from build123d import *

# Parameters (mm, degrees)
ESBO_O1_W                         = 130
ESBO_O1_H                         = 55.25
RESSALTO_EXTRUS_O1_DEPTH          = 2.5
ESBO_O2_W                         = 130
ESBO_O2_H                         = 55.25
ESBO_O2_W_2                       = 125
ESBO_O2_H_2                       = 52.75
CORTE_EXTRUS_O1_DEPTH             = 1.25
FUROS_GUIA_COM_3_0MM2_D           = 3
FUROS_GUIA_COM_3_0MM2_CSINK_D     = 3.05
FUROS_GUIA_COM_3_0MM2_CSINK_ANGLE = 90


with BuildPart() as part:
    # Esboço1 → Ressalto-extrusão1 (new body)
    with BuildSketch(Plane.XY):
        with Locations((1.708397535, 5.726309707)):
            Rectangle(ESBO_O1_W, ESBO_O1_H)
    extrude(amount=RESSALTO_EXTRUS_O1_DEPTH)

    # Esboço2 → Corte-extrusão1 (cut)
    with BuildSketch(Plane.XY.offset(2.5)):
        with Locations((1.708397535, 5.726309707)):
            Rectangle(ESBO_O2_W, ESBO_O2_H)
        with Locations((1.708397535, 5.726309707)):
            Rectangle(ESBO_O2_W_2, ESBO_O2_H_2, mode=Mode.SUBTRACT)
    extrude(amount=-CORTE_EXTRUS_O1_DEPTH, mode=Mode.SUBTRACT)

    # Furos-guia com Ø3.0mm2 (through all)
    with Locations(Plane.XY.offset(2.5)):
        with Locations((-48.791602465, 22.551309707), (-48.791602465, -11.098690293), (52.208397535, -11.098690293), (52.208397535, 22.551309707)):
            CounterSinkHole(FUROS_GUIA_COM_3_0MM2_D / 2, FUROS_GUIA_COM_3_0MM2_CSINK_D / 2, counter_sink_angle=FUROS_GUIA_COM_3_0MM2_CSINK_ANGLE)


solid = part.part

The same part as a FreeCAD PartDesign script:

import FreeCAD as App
import Part
import Sketcher
from FreeCAD import Vector
Q = App.Units.Quantity

doc = App.newDocument("Part")
body = doc.addObject("PartDesign::Body", "Body")

# Sketch on XY plane
sketch1 = body.newObject("Sketcher::SketchObject", "Sketch")
sketch1.AttachmentSupport = (doc.getObject("XY_Plane"), [""])
sketch1.MapMode = "FlatFace"
sketch1.addGeometry([
    Part.LineSegment(Vector(-63, 33, 0), Vector(-63, -22, 0)),
    Part.LineSegment(Vector(-63, -22, 0), Vector(67, -22, 0)),
    Part.LineSegment(Vector(67, -22, 0), Vector(67, 33, 0)),
    Part.LineSegment(Vector(67, 33, 0), Vector(-63, 33, 0)),
], False)
sketch1.addConstraint([
    Sketcher.Constraint("Coincident", 0, 2, 1, 1),
    Sketcher.Constraint("Coincident", 1, 2, 2, 1),
    Sketcher.Constraint("Coincident", 2, 2, 3, 1),
    Sketcher.Constraint("Coincident", 3, 2, 0, 1),
    Sketcher.Constraint("Vertical", 0),
    Sketcher.Constraint("Horizontal", 1),
    Sketcher.Constraint("Vertical", 2),
    Sketcher.Constraint("Horizontal", 3),
    Sketcher.Constraint("DistanceX", 1, 1, 1, 2, Q("130 mm")),
    Sketcher.Constraint("DistanceY", 0, 2, 0, 1, Q("55.25 mm")),
    Sketcher.Constraint("DistanceY", 0, 2, -1, 1, Q("21.89869 mm")),
    Sketcher.Constraint("DistanceX", 0, 2, -1, 1, Q("63.291602 mm")),
])
pad1 = body.newObject("PartDesign::Pad", "Pad")
pad1.Profile = sketch1
pad1.Length = 2.5

# Sketch on XY plane
sketch2 = body.newObject("Sketcher::SketchObject", "Sketch001")
sketch2.AttachmentSupport = (doc.getObject("XY_Plane"), [""])
sketch2.MapMode = "FlatFace"
sketch2.AttachmentOffset = App.Placement(Vector(0, 0, 2.5), App.Rotation())
sketch2.addGeometry([
    Part.LineSegment(Vector(-63, 33, 0), Vector(-63, -22, 0)),  # 0
    Part.LineSegment(Vector(-63, -22, 0), Vector(67, -22, 0)),  # 1
    Part.LineSegment(Vector(67, -22, 0), Vector(67, 33, 0)),  # 2
    Part.LineSegment(Vector(67, 33, 0), Vector(-63, 33, 0)),  # 3
    Part.LineSegment(Vector(64, -21, 0), Vector(-61, -21, 0)),  # 4
    Part.LineSegment(Vector(-61, -21, 0), Vector(-61, 32, 0)),  # 5
    Part.LineSegment(Vector(-61, 32, 0), Vector(64, 32, 0)),  # 6
    Part.LineSegment(Vector(64, 32, 0), Vector(64, -21, 0)),  # 7
], False)
sketch2.addConstraint([
    Sketcher.Constraint("Coincident", 0, 2, 1, 1),
    Sketcher.Constraint("Coincident", 1, 2, 2, 1),
    Sketcher.Constraint("Coincident", 2, 2, 3, 1),
    Sketcher.Constraint("Coincident", 3, 2, 0, 1),
    Sketcher.Constraint("Coincident", 4, 2, 5, 1),
    Sketcher.Constraint("Coincident", 5, 2, 6, 1),
    Sketcher.Constraint("Coincident", 6, 2, 7, 1),
    Sketcher.Constraint("Coincident", 7, 2, 4, 1),
    Sketcher.Constraint("Vertical", 0),
    Sketcher.Constraint("Horizontal", 1),
    Sketcher.Constraint("Vertical", 2),
    Sketcher.Constraint("Horizontal", 3),
    Sketcher.Constraint("Horizontal", 4),
    Sketcher.Constraint("Vertical", 5),
    Sketcher.Constraint("Horizontal", 6),
    Sketcher.Constraint("Vertical", 7),
    Sketcher.Constraint("DistanceX", 1, 1, 1, 2, Q("130 mm")),
    Sketcher.Constraint("DistanceX", 4, 2, 4, 1, Q("125 mm")),
    Sketcher.Constraint("DistanceY", 4, 2, 3, 2, Q("54 mm")),
    Sketcher.Constraint("DistanceY", 0, 2, 5, 2, Q("54 mm")),
    Sketcher.Constraint("DistanceY", 0, 2, 0, 1, Q("55.25 mm")),
    Sketcher.Constraint("DistanceX", 0, 2, 4, 2, Q("2.5 mm")),
    Sketcher.Constraint("DistanceY", 0, 2, -1, 1, Q("21.89869 mm")),
    Sketcher.Constraint("DistanceX", 0, 2, -1, 1, Q("63.291602 mm")),
])
pocket1 = body.newObject("PartDesign::Pocket", "Pocket")
pocket1.Profile = sketch2
pocket1.Length = 1.25

# Sketch on XY plane
sketch3 = body.newObject("Sketcher::SketchObject", "Sketch002")
sketch3.AttachmentSupport = (doc.getObject("XY_Plane"), [""])
sketch3.MapMode = "FlatFace"
sketch3.AttachmentOffset = App.Placement(Vector(0, 0, 2.5), App.Rotation())
sketch3.addGeometry([
    Part.Circle(Vector(-48.8, 22.6, 0), Vector(0, 0, 1), 1.5),
    Part.Circle(Vector(-48.8, -11.1, 0), Vector(0, 0, 1), 1.5),
    Part.Circle(Vector(52.2, -11.1, 0), Vector(0, 0, 1), 1.5),
    Part.Circle(Vector(52.2, 22.6, 0), Vector(0, 0, 1), 1.5),
], False)
sketch3.addConstraint([
    Sketcher.Constraint("Equal", 0, 1),
    Sketcher.Constraint("Equal", 1, 2),
    Sketcher.Constraint("Equal", 2, 3),
    Sketcher.Constraint("Horizontal", 1, 3, 2, 3),
    Sketcher.Constraint("Horizontal", 0, 3, 3, 3),
    Sketcher.Constraint("Vertical", 0, 3, 1, 3),
    Sketcher.Constraint("Vertical", 2, 3, 3, 3),
    Sketcher.Constraint("Diameter", 0, Q("3 mm")),
    Sketcher.Constraint("DistanceX", 1, 3, 2, 3, Q("101 mm")),
    Sketcher.Constraint("DistanceY", 1, 3, 0, 3, Q("33.65 mm")),
    Sketcher.Constraint("DistanceY", -1, 1, 0, 3, Q("22.55131 mm")),
    Sketcher.Constraint("DistanceX", 0, 3, -1, 1, Q("48.791602 mm")),
])
doc.recompute()
hole = body.newObject("PartDesign::Hole", "Hole")
hole.Profile = sketch3
hole.ThreadType = "None"
hole.Diameter = 3
hole.DepthType = "ThroughAll"
hole.HoleCutType = "Countersink"
hole.HoleCutDiameter = 3.05
hole.HoleCutCountersinkAngle = 90

doc.recompute()
